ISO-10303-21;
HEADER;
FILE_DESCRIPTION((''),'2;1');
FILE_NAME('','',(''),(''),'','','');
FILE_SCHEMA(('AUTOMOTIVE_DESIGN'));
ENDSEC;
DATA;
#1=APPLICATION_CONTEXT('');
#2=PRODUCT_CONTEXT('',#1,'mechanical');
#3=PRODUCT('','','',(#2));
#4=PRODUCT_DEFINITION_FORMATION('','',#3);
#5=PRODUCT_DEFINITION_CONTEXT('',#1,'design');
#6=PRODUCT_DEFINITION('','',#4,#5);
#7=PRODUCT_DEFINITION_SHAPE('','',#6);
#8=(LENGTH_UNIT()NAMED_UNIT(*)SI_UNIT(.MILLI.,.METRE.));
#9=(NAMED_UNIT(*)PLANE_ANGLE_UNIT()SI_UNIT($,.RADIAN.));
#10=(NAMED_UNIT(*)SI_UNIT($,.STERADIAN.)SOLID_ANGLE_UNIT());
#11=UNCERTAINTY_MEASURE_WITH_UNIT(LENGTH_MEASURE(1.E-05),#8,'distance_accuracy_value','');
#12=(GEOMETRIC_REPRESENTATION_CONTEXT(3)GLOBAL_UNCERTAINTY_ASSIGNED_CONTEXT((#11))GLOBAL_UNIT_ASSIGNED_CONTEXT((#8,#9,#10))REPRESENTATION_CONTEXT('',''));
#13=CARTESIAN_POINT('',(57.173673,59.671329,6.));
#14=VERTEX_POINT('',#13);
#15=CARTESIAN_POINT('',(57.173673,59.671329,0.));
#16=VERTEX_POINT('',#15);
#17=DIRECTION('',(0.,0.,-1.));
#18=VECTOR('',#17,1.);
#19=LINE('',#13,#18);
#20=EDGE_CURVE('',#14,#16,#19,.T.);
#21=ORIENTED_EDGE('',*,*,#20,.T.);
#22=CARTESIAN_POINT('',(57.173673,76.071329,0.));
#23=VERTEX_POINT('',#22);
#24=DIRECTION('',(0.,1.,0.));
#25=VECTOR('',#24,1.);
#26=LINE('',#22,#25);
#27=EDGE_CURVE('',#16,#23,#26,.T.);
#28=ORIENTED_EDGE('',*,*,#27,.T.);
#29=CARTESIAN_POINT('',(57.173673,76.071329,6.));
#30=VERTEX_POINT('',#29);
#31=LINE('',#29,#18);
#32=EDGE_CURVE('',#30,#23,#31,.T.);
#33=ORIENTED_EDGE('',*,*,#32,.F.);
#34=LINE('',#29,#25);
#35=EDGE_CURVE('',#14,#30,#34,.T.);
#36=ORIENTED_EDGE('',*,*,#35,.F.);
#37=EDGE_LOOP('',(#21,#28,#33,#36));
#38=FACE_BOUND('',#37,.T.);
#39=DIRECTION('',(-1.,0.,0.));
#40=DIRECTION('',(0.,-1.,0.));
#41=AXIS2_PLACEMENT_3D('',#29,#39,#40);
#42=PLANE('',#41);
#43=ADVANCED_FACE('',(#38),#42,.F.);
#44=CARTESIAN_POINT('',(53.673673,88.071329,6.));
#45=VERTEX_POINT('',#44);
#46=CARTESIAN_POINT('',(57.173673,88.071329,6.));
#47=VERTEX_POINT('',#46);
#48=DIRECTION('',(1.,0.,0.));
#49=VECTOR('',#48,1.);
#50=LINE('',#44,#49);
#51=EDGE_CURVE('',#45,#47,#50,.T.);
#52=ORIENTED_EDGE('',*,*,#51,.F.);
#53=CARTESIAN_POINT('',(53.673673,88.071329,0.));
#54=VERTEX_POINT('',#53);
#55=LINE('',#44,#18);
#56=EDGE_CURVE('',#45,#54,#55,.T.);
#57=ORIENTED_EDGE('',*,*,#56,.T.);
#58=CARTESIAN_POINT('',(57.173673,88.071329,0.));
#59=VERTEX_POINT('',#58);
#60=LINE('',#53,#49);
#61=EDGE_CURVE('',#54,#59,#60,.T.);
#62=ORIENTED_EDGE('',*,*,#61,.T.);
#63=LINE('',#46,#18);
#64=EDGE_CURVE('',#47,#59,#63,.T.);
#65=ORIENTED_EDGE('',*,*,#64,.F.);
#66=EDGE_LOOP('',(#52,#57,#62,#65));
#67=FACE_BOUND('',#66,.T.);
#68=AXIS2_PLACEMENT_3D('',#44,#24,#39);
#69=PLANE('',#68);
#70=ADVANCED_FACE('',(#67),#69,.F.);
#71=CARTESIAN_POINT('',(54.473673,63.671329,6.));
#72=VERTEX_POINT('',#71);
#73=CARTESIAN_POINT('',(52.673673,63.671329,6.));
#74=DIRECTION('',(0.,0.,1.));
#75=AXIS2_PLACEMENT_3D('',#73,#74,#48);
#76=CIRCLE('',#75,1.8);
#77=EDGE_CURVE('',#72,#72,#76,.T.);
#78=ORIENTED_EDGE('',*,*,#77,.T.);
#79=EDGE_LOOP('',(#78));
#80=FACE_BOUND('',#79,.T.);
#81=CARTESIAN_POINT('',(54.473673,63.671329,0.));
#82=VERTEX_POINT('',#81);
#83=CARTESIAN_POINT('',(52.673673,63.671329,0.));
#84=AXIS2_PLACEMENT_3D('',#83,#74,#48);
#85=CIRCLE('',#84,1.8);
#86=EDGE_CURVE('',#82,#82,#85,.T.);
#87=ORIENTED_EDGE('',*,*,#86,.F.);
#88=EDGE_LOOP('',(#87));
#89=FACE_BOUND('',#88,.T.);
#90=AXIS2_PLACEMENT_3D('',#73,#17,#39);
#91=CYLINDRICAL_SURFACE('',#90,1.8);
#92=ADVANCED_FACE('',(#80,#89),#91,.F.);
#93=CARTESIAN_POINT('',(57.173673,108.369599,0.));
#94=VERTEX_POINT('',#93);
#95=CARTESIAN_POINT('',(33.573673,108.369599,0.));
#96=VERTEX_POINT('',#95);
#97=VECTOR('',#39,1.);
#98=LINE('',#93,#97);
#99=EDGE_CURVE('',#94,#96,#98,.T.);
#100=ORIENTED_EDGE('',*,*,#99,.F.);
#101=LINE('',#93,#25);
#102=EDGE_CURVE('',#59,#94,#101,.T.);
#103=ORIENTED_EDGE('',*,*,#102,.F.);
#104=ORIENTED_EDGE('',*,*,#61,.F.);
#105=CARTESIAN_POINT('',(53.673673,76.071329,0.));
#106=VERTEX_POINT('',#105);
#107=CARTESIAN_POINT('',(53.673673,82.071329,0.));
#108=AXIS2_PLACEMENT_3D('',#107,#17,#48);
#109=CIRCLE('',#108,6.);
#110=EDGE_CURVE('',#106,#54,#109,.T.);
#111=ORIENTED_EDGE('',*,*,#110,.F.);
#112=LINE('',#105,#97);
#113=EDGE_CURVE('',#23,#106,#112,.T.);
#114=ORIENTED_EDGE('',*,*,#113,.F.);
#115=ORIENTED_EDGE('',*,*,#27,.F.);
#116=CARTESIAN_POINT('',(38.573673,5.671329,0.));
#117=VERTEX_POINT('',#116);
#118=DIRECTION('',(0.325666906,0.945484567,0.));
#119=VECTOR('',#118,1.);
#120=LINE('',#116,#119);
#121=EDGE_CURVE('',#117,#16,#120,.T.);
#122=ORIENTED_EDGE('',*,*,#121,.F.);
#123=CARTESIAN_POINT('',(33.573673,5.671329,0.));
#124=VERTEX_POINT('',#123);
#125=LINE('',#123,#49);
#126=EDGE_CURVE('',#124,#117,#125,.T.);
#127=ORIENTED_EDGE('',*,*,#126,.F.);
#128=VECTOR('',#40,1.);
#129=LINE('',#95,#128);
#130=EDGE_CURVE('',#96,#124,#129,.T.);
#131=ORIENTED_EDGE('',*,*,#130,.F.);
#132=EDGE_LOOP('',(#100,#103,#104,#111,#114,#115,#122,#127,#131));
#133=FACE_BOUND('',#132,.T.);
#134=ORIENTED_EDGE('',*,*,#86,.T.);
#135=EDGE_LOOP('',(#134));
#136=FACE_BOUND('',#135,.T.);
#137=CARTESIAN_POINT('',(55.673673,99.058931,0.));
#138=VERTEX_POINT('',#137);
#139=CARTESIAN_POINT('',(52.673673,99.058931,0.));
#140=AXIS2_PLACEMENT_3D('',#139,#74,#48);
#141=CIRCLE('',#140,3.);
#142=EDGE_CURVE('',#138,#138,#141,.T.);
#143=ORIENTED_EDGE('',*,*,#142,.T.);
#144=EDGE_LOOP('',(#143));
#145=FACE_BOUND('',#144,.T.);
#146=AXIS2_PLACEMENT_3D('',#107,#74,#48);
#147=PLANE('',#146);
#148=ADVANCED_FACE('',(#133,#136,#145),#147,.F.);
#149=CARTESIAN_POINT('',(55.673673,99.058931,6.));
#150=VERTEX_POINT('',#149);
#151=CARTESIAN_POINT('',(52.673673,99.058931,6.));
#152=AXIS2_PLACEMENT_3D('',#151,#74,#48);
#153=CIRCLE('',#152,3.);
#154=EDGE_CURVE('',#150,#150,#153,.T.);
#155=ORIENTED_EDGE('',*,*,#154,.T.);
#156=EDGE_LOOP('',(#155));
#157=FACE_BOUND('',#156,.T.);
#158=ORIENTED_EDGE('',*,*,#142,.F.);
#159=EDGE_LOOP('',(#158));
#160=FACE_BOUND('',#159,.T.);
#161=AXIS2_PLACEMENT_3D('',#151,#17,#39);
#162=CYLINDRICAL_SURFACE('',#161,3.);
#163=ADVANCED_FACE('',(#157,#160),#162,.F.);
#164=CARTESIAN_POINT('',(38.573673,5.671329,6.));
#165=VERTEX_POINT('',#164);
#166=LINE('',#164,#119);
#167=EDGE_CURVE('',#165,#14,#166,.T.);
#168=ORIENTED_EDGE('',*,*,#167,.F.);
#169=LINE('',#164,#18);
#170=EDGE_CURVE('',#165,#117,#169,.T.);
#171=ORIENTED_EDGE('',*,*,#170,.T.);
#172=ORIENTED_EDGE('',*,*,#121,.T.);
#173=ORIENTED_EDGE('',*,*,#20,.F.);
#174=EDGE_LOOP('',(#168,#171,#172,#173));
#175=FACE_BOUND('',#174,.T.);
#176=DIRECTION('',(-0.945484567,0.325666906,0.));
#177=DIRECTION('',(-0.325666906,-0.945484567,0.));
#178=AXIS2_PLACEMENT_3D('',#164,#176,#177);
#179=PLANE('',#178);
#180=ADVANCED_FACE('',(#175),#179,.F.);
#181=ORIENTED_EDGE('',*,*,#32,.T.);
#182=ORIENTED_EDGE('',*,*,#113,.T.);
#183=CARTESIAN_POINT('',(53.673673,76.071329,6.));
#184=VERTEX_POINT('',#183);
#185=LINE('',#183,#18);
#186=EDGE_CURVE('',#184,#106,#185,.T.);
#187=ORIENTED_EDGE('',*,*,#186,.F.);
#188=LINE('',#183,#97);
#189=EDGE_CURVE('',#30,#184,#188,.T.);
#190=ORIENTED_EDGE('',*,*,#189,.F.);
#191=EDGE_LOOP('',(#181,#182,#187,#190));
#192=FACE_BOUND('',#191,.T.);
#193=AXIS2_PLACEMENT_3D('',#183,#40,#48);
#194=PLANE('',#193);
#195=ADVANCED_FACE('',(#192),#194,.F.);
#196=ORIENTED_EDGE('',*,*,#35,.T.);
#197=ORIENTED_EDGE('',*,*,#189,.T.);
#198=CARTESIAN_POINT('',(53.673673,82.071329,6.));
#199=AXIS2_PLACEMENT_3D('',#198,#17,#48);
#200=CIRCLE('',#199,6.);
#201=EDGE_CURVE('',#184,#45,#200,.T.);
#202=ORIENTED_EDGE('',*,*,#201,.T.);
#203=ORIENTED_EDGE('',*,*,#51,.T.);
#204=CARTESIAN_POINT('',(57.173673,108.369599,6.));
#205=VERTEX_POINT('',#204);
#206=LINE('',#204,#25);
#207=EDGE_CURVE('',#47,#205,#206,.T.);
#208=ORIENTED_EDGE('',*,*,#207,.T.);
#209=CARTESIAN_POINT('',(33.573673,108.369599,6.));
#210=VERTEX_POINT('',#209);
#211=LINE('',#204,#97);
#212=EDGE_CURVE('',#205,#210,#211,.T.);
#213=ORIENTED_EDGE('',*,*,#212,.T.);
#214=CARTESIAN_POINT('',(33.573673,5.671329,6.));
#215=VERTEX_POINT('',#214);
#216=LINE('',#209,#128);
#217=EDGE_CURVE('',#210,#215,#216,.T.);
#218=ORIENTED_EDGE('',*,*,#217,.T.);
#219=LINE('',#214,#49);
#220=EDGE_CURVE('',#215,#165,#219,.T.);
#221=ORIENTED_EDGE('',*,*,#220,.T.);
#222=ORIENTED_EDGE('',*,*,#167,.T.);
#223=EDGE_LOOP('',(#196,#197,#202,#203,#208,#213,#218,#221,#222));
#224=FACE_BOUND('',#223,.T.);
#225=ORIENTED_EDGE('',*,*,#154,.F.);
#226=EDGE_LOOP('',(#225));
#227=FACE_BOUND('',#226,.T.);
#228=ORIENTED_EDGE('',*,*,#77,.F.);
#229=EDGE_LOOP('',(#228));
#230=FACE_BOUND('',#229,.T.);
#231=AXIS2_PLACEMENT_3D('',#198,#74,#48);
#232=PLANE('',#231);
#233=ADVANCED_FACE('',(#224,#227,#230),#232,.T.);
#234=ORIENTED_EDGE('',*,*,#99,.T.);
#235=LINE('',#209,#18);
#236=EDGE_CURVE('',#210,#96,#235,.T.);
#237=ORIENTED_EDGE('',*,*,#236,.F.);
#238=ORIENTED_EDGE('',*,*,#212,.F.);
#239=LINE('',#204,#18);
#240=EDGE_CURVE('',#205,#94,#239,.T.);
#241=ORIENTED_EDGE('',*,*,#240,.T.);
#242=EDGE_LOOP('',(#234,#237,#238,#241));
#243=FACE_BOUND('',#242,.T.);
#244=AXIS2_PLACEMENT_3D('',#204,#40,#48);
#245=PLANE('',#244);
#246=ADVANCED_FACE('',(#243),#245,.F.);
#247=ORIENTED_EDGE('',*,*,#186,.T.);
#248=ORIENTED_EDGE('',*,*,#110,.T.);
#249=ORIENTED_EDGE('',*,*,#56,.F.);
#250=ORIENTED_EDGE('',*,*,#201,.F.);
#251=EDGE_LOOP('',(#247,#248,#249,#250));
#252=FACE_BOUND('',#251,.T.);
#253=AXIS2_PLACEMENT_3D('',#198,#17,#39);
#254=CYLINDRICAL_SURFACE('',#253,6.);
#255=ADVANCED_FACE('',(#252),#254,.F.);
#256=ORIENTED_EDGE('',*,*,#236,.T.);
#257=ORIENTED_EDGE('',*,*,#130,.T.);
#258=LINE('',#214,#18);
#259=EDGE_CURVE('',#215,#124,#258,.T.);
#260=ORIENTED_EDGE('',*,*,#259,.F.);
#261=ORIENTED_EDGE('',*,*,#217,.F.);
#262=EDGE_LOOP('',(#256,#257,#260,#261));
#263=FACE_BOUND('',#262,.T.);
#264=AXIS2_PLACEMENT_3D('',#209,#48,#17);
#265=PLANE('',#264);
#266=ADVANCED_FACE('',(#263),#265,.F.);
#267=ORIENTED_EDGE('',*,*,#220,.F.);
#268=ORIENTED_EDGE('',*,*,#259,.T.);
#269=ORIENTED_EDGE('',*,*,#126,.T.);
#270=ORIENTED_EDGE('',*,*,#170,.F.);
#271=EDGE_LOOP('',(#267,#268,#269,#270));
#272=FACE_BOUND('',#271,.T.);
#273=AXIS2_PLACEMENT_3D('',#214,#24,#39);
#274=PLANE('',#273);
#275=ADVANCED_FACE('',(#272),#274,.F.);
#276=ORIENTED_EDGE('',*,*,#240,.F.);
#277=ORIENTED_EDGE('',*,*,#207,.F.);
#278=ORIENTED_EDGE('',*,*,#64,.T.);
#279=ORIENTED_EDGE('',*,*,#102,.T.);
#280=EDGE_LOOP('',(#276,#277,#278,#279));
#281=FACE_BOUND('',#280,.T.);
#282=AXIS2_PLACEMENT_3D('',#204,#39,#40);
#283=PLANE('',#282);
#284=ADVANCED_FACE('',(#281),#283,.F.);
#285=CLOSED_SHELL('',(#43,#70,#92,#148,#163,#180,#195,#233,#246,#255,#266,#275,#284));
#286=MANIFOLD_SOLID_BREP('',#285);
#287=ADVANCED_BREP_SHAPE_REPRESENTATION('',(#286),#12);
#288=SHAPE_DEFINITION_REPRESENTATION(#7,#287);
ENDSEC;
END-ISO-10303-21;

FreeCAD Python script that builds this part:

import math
import FreeCAD as App
import Part
import Sketcher
Q = App.Units.Quantity

doc = App.newDocument("Part")
body = doc.addObject("PartDesign::Body", "Body")

# Sketch on XY plane
sketch1 = body.newObject("Sketcher::SketchObject", "Sketch")
sketch1.AttachmentSupport = (doc.getObject("XY_Plane"), [""])
sketch1.MapMode = "FlatFace"
sketch1.addGeometry([
    Part.LineSegment(App.Vector(57.2, 108.4, 0), App.Vector(33.6, 108.4, 0)),  # 0
    Part.LineSegment(App.Vector(33.6, 108.4, 0), App.Vector(33.6, 5.7, 0)),  # 1
    Part.LineSegment(App.Vector(33.6, 5.7, 0), App.Vector(38.6, 5.7, 0)),  # 2
    Part.LineSegment(App.Vector(38.6, 5.7, 0), App.Vector(57.2, 59.7, 0)),  # 3
    Part.LineSegment(App.Vector(57.2, 59.7, 0), App.Vector(57.2, 76.1, 0)),  # 4
    Part.LineSegment(App.Vector(57.2, 76.1, 0), App.Vector(53.7, 76.1, 0)),  # 5
    Part.ArcOfCircle(Part.Circle(App.Vector(53.7, 82.1, 0), App.Vector(0, 0, 1), 6), math.radians(90), math.radians(270)),  # 6
    Part.LineSegment(App.Vector(53.7, 88.1, 0), App.Vector(57.2, 88.1, 0)),  # 7
    Part.LineSegment(App.Vector(57.2, 88.1, 0), App.Vector(57.2, 108.4, 0)),  # 8
    Part.Circle(App.Vector(52.7, 63.7, 0), App.Vector(0, 0, 1), 1.8),  # 9
    Part.Circle(App.Vector(52.7, 99.1, 0), App.Vector(0, 0, 1), 3),  # 10
], False)
sketch1.addConstraint([
    Sketcher.Constraint("Coincident", 0, 2, 1, 1),
    Sketcher.Constraint("Coincident", 1, 2, 2, 1),
    Sketcher.Constraint("Coincident", 2, 2, 3, 1),
    Sketcher.Constraint("Coincident", 3, 2, 4, 1),
    Sketcher.Constraint("Coincident", 4, 2, 5, 1),
    Sketcher.Constraint("Tangent", 5, 2, 6, 2),
    Sketcher.Constraint("Tangent", 6, 1, 7, 1),
    Sketcher.Constraint("Coincident", 7, 2, 8, 1),
    Sketcher.Constraint("Coincident", 8, 2, 0, 1),
    Sketcher.Constraint("Horizontal", 0),
    Sketcher.Constraint("Vertical", 1),
    Sketcher.Constraint("Horizontal", 2),
    Sketcher.Constraint("Vertical", 4),
    Sketcher.Constraint("Horizontal", 5),
    Sketcher.Constraint("Horizontal", 7),
    Sketcher.Constraint("Vertical", 8),
    Sketcher.Constraint("Vertical", 9, 3, 10, 3),
    Sketcher.Constraint("Vertical", 4, 2, 7, 2),
    Sketcher.Constraint("Diameter", 10, Q("6 mm")),
    Sketcher.Constraint("Radius", 6, Q("6 mm")),
    Sketcher.Constraint("Diameter", 9, Q("3.6 mm")),
    Sketcher.Constraint("DistanceX", 2, 1, 2, 2, Q("5 mm")),
    Sketcher.Constraint("DistanceX", 0, 2, 0, 1, Q("23.6 mm")),
    Sketcher.Constraint("DistanceX", 5, 2, 5, 1, Q("3.5 mm")),
    Sketcher.Constraint("DistanceY", 4, 1, 4, 2, Q("16.4 mm")),
    Sketcher.Constraint("DistanceX", 9, 3, 6, 3, Q("1 mm")),
    Sketcher.Constraint("DistanceY", 1, 2, 9, 3, Q("58 mm")),
    Sketcher.Constraint("DistanceY", 3, 2, 9, 3, Q("4 mm")),
    Sketcher.Constraint("DistanceY", 1, 2, 1, 1, Q("102.69827 mm")),
    Sketcher.Constraint("DistanceY", -1, 1, 0, 2, Q("108.369599 mm")),
    Sketcher.Constraint("DistanceY", 6, 3, 10, 3, Q("16.987601 mm")),
    Sketcher.Constraint("DistanceX", -1, 1, 6, 3, Q("53.673673 mm")),
])
pad1 = body.newObject("PartDesign::Pad", "Pad")
pad1.Profile = sketch1
pad1.Length = 6

doc.recompute()
